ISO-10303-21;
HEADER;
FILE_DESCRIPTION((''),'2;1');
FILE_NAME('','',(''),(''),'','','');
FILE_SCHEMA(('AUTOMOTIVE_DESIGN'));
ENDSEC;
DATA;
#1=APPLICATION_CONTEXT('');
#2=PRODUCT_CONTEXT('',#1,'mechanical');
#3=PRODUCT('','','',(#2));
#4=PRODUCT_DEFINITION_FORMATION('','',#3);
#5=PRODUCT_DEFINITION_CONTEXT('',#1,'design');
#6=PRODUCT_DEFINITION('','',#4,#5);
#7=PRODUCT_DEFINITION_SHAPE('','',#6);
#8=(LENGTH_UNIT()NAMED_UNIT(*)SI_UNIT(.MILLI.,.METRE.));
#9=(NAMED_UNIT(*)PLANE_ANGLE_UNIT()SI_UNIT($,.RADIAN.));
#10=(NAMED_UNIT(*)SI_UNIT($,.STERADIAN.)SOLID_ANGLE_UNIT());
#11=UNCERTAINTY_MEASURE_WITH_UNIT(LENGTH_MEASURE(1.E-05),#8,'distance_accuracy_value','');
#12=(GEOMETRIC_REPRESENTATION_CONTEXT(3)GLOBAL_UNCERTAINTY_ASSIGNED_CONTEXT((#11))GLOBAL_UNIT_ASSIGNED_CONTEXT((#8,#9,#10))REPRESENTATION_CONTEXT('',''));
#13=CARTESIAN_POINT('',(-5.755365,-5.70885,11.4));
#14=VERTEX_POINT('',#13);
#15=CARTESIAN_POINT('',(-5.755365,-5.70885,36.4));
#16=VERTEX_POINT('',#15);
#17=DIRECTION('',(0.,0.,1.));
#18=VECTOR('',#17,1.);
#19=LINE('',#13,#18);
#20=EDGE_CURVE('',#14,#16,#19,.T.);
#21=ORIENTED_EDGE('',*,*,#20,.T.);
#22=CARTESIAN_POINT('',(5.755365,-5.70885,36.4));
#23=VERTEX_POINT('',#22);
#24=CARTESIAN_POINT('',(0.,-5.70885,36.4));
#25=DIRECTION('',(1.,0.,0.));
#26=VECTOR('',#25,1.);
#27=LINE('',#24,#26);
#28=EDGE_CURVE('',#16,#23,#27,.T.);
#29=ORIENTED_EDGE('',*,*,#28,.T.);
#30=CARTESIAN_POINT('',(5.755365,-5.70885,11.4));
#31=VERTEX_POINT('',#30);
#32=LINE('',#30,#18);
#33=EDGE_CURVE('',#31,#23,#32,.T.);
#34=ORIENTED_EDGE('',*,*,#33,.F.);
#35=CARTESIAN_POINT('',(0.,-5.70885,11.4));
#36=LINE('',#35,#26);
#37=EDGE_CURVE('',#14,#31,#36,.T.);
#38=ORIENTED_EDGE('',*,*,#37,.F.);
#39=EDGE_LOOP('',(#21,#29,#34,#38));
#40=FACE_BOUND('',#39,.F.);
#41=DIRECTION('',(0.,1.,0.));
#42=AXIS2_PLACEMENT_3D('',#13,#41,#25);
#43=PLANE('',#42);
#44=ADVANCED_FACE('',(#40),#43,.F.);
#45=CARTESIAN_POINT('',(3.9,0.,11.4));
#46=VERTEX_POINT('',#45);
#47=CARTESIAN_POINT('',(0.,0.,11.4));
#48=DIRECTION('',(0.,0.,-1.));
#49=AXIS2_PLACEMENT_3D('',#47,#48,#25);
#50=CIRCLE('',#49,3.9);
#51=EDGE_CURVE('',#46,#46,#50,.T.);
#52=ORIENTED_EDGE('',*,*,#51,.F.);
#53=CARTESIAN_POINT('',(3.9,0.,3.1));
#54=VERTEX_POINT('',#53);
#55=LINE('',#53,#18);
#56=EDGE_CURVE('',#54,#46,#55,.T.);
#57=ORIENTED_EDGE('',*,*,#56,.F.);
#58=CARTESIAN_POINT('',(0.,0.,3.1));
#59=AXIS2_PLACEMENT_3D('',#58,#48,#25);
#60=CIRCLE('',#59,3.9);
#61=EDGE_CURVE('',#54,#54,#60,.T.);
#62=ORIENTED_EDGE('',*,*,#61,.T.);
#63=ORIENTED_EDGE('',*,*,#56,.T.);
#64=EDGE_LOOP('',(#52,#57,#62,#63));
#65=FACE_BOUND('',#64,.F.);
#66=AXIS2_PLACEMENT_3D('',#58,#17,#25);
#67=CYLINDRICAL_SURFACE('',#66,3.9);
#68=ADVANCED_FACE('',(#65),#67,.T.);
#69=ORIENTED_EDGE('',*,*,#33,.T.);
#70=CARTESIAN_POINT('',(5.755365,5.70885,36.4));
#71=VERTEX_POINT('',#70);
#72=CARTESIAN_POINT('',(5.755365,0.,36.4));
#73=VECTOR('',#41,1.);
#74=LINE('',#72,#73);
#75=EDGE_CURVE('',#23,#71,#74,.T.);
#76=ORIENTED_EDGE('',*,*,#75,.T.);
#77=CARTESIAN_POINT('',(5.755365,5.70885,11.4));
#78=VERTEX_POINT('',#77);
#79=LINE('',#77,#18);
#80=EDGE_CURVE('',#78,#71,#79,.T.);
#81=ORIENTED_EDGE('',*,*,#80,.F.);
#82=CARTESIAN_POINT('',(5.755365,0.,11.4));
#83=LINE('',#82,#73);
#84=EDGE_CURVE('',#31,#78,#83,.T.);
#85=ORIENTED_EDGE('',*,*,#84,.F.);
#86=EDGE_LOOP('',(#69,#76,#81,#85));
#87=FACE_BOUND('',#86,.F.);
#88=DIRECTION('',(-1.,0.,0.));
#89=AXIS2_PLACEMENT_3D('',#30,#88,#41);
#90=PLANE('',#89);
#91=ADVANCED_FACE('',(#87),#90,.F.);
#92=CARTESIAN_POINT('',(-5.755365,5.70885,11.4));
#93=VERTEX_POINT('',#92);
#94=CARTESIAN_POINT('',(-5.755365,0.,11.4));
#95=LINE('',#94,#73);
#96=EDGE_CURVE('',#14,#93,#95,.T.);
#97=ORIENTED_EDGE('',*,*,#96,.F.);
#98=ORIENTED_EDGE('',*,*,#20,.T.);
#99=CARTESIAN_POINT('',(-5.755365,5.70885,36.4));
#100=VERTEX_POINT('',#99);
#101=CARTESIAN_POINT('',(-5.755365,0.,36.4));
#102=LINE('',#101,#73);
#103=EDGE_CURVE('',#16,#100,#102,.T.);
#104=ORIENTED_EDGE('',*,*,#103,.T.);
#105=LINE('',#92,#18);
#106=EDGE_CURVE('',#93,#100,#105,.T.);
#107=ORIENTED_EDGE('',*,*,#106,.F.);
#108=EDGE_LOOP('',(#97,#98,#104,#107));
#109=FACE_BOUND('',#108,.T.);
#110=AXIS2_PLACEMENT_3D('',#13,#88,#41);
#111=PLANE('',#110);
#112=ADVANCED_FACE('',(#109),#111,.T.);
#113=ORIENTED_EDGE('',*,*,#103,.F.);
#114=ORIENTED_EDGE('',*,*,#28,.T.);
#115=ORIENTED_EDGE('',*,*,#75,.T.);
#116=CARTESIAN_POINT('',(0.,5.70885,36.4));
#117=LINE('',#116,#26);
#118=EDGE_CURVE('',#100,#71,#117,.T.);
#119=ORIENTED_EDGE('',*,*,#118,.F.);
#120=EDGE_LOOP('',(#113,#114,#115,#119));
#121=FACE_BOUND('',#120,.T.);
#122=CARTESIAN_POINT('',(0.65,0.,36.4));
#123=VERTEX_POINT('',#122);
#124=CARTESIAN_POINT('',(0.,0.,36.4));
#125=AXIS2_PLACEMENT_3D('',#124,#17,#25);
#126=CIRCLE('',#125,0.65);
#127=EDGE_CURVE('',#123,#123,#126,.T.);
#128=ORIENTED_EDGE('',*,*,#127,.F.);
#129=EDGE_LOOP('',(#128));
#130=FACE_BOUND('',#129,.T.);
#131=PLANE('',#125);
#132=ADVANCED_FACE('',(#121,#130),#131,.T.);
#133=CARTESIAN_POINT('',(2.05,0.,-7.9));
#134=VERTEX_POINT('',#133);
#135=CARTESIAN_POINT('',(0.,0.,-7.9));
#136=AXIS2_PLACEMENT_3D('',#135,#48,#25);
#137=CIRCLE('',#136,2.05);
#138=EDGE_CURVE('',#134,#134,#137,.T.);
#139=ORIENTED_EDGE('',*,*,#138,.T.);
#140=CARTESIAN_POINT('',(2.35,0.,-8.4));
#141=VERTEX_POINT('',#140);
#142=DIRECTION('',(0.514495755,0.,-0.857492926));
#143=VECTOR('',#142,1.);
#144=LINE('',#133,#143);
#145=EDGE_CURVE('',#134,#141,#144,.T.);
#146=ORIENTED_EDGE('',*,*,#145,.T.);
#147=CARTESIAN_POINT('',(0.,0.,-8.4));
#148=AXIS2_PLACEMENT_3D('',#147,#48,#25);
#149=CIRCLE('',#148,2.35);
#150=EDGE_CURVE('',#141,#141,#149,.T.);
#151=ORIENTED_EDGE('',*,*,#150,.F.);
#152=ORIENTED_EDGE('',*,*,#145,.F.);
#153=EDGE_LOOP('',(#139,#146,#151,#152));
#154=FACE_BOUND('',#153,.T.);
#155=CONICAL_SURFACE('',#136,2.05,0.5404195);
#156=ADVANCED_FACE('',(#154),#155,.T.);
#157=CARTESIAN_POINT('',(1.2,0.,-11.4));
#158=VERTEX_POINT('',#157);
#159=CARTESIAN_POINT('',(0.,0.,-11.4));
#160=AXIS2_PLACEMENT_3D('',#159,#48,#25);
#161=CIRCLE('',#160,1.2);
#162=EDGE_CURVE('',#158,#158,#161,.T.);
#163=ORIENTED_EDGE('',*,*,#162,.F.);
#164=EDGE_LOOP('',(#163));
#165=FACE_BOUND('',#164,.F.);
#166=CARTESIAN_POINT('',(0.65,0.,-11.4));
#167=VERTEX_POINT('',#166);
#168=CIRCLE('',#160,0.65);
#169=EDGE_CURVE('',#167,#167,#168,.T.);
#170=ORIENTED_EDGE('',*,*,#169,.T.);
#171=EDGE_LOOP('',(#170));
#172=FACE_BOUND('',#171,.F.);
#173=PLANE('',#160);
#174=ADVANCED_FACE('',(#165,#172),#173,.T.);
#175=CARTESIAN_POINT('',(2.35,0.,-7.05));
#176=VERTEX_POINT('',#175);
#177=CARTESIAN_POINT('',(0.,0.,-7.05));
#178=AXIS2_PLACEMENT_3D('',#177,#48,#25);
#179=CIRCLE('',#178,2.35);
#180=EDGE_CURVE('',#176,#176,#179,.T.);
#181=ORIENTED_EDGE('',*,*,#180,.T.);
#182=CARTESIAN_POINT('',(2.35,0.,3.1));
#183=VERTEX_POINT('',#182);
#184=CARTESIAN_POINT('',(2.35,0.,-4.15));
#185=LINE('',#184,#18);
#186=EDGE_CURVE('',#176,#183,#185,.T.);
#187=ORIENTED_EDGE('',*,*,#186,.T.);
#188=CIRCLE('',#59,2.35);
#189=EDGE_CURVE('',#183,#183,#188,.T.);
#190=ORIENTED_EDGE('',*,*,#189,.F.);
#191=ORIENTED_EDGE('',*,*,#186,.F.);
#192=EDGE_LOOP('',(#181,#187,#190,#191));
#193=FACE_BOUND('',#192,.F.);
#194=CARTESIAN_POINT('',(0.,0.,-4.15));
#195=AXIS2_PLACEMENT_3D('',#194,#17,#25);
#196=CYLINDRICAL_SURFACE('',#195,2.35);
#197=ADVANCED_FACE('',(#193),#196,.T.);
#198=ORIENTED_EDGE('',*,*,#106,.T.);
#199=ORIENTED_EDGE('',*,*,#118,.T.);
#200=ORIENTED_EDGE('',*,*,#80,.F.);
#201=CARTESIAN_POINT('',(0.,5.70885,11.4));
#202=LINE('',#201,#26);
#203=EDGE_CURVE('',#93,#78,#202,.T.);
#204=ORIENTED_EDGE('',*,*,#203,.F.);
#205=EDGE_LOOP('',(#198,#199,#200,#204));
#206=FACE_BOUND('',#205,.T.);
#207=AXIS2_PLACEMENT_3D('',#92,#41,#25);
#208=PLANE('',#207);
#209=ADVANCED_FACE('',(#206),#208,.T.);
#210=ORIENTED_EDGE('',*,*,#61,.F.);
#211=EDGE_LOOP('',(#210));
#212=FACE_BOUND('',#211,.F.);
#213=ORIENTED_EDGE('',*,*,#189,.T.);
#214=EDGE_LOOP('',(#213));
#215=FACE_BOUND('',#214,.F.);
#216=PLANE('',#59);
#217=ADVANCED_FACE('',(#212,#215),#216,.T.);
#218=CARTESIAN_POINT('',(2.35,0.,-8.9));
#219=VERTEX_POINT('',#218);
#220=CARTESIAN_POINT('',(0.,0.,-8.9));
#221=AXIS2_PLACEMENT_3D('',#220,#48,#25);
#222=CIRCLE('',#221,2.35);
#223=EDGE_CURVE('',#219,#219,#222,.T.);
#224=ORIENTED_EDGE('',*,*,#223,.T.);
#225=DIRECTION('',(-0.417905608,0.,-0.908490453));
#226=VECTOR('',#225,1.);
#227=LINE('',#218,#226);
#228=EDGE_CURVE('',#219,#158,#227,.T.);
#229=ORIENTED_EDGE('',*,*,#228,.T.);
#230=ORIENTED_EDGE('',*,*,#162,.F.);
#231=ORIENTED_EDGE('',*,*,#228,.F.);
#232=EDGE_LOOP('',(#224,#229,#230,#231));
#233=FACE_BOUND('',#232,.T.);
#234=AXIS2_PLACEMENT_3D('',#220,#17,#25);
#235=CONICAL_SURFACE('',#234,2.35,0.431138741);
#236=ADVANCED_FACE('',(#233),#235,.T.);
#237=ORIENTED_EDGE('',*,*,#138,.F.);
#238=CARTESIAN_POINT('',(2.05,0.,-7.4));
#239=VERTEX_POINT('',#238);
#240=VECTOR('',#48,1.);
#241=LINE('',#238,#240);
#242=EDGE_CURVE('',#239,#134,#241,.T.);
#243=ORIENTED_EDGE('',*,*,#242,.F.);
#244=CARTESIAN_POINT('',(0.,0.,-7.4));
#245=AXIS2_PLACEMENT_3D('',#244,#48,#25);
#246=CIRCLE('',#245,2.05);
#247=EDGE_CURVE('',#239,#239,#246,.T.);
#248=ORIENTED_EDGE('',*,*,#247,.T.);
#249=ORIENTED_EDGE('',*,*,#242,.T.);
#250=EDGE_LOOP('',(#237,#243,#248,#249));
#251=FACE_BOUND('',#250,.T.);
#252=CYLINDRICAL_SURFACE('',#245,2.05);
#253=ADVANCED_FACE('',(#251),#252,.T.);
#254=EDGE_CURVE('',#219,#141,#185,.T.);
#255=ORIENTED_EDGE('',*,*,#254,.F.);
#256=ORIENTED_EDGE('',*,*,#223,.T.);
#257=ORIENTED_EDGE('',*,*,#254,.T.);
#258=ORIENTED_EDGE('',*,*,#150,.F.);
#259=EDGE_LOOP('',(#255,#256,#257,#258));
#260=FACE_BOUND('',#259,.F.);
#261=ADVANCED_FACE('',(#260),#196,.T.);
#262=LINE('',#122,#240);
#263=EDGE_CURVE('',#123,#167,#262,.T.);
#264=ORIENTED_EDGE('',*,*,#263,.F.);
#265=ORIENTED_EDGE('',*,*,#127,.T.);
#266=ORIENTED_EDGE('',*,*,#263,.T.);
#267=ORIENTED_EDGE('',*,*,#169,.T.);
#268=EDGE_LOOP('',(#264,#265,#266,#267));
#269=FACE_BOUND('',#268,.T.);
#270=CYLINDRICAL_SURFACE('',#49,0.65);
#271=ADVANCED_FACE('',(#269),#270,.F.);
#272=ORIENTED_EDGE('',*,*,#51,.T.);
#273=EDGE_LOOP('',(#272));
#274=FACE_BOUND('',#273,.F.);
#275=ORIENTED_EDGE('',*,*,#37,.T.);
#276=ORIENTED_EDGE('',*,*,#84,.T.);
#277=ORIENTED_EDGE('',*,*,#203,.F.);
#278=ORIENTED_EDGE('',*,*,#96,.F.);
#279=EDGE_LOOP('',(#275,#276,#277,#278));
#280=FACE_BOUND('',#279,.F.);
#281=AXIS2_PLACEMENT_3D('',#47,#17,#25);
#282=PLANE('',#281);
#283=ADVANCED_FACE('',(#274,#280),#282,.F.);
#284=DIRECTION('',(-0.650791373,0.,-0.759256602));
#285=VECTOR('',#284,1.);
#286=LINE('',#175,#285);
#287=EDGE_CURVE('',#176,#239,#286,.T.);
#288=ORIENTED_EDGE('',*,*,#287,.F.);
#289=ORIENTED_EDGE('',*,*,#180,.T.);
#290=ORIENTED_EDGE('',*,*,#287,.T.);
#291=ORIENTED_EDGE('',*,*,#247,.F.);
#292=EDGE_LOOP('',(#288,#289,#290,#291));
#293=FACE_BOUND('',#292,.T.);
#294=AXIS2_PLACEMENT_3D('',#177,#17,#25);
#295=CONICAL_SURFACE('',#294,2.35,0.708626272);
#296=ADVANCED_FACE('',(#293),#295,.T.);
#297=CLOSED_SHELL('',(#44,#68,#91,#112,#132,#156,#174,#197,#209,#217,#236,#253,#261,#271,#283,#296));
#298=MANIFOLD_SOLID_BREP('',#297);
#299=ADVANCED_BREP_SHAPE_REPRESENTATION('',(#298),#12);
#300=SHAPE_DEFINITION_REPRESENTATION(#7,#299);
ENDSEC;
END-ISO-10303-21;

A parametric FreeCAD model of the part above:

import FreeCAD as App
import Part
import Sketcher
from FreeCAD import Vector
Q = App.Units.Quantity


def add_polygon(sketch, points):
    """Adds a closed chain of lines whose ends are joined by coincident constraints."""
    first, n = sketch.GeometryCount, len(points)
    for a, b in zip(points, points[1:] + points[:1]):
        sketch.addGeometry(Part.LineSegment(App.Vector(*a, 0), App.Vector(*b, 0)), False)
    for i in range(n):
        sketch.addConstraint(Sketcher.Constraint("Coincident", first + i, 2, first + (i + 1) % n, 1))

doc = App.newDocument("Part")
body = doc.addObject("PartDesign::Body", "Body")

# Sketch on XZ plane
sketch1 = body.newObject("Sketcher::SketchObject", "Sketch")
sketch1.AttachmentSupport = (doc.getObject("XZ_Plane"), [""])
sketch1.MapMode = "FlatFace"
add_polygon(sketch1, [(3.9, 11.4), (0, 11.4), (0, -11.4), (2.4, -11.4), (2.4, 3.1), (3.9, 3.1)])  # lines 0-5
sketch1.addConstraint(Sketcher.Constraint("Horizontal", 0))
sketch1.addConstraint(Sketcher.Constraint("Vertical", 1))
sketch1.addConstraint(Sketcher.Constraint("Horizontal", 2))
sketch1.addConstraint(Sketcher.Constraint("Vertical", 3))
sketch1.addConstraint(Sketcher.Constraint("Horizontal", 4))
sketch1.addConstraint(Sketcher.Constraint("Vertical", 5))
sketch1.addConstraint(Sketcher.Constraint("Symmetric", 0, 2, 1, 2, -1, 1))
sketch1.addConstraint(Sketcher.Constraint("DistanceX", 0, 2, 0, 1, Q("3.9 mm")))
sketch1.addConstraint(Sketcher.Constraint("DistanceY", 1, 2, 1, 1, Q("22.8 mm")))
sketch1.addConstraint(Sketcher.Constraint("DistanceY", 3, 1, 3, 2, Q("14.5 mm")))
sketch1.addConstraint(Sketcher.Constraint("DistanceX", 2, 1, 2, 2, Q("2.35 mm")))
revolution = body.newObject("PartDesign::Revolution", "Revolution")
revolution.Profile = sketch1
revolution.ReferenceAxis = (sketch1, ["V_Axis"])
revolution.Angle = 360

# Sketch on XZ plane
sketch2 = body.newObject("Sketcher::SketchObject", "Sketch001")
sketch2.AttachmentSupport = (doc.getObject("XZ_Plane"), [""])
sketch2.MapMode = "FlatFace"
add_polygon(sketch2, [(2.05, -7.9), (2.35, -8.4), (2.35, -7.05), (2.05, -7.4)])  # lines 0-3
add_polygon(sketch2, [(2.35, -8.9), (1.2, -11.4), (2.35, -11.4)])  # lines 4-6
sketch2.addConstraint(Sketcher.Constraint("Vertical", 1))
sketch2.addConstraint(Sketcher.Constraint("Vertical", 3))
sketch2.addConstraint(Sketcher.Constraint("Horizontal", 5))
sketch2.addConstraint(Sketcher.Constraint("Vertical", 6))
sketch2.addConstraint(Sketcher.Constraint("Vertical", 1, 2, 5, 2))
sketch2.addConstraint(Sketcher.Constraint("DistanceY", 3, 2, 3, 1, Q("0.5 mm")))
sketch2.addConstraint(Sketcher.Constraint("DistanceY", 6, 1, 6, 2, Q("2.5 mm")))
sketch2.addConstraint(Sketcher.Constraint("DistanceY", 0, 2, 2, 2, Q("1 mm")))
sketch2.addConstraint(Sketcher.Constraint("DistanceY", 4, 2, 0, 2, Q("3 mm")))
sketch2.addConstraint(Sketcher.Constraint("DistanceX", 5, 1, 5, 2, Q("1.15 mm")))
sketch2.addConstraint(Sketcher.Constraint("DistanceY", 1, 1, 1, 2, Q("1.35 mm")))
sketch2.addConstraint(Sketcher.Constraint("DistanceY", 0, 2, -1, 1, Q("8.4 mm")))
sketch2.addConstraint(Sketcher.Constraint("DistanceX", -1, 1, 4, 2, Q("1.2 mm")))
sketch2.addConstraint(Sketcher.Constraint("DistanceX", 2, 2, 1, 2, Q("0.3 mm")))
groove = body.newObject("PartDesign::Groove", "Groove")
groove.Profile = sketch2
groove.ReferenceAxis = (sketch2, ["V_Axis"])
groove.Angle = 360

# Sketch on XY plane
sketch3 = body.newObject("Sketcher::SketchObject", "Sketch002")
sketch3.AttachmentSupport = (doc.getObject("XY_Plane"), [""])
sketch3.MapMode = "FlatFace"
sketch3.AttachmentOffset = App.Placement(Vector(0, 0, -11.4), App.Rotation())
sketch3.addGeometry(Part.Circle(Vector(0, 0, 0), Vector(0, 0, 1), 0.7), False)
sketch3.addConstraint(Sketcher.Constraint("Coincident", 0, 3, -1, 1))
sketch3.addConstraint(Sketcher.Constraint("Diameter", 0, Q("1.3 mm")))
pocket1 = body.newObject("PartDesign::Pocket", "Pocket")
pocket1.Profile = sketch3
pocket1.Type = "ThroughAll"
pocket1.Reversed = True

# Sketch on XY plane
sketch4 = body.newObject("Sketcher::SketchObject", "Sketch003")
sketch4.AttachmentSupport = (doc.getObject("XY_Plane"), [""])
sketch4.MapMode = "FlatFace"
sketch4.AttachmentOffset = App.Placement(Vector(0, 0, 11.4), App.Rotation())
add_polygon(sketch4, [(-5.8, 5.7), (-5.8, -5.7), (5.8, -5.7), (5.8, 5.7)])  # lines 0-3
sketch4.addGeometry(Part.Circle(Vector(0, 0, 0), Vector(0, 0, 1), 0.7), False)  # 4
sketch4.addConstraint(Sketcher.Constraint("Vertical", 0))
sketch4.addConstraint(Sketcher.Constraint("Horizontal", 1))
sketch4.addConstraint(Sketcher.Constraint("Vertical", 2))
sketch4.addConstraint(Sketcher.Constraint("Horizontal", 3))
sketch4.addConstraint(Sketcher.Constraint("Coincident", 4, 3, -1, 1))
sketch4.addConstraint(Sketcher.Constraint("Symmetric", 0, 2, 2, 2, -1, 1))
sketch4.addConstraint(Sketcher.Constraint("Diameter", 4, Q("1.3 mm")))
sketch4.addConstraint(Sketcher.Constraint("DistanceY", 0, 2, 0, 1, Q("11.4177 mm")))
sketch4.addConstraint(Sketcher.Constraint("DistanceX", 1, 1, 1, 2, Q("11.510731 mm")))
pad1 = body.newObject("PartDesign::Pad", "Pad")
pad1.Profile = sketch4
pad1.Length = 25

doc.recompute()
